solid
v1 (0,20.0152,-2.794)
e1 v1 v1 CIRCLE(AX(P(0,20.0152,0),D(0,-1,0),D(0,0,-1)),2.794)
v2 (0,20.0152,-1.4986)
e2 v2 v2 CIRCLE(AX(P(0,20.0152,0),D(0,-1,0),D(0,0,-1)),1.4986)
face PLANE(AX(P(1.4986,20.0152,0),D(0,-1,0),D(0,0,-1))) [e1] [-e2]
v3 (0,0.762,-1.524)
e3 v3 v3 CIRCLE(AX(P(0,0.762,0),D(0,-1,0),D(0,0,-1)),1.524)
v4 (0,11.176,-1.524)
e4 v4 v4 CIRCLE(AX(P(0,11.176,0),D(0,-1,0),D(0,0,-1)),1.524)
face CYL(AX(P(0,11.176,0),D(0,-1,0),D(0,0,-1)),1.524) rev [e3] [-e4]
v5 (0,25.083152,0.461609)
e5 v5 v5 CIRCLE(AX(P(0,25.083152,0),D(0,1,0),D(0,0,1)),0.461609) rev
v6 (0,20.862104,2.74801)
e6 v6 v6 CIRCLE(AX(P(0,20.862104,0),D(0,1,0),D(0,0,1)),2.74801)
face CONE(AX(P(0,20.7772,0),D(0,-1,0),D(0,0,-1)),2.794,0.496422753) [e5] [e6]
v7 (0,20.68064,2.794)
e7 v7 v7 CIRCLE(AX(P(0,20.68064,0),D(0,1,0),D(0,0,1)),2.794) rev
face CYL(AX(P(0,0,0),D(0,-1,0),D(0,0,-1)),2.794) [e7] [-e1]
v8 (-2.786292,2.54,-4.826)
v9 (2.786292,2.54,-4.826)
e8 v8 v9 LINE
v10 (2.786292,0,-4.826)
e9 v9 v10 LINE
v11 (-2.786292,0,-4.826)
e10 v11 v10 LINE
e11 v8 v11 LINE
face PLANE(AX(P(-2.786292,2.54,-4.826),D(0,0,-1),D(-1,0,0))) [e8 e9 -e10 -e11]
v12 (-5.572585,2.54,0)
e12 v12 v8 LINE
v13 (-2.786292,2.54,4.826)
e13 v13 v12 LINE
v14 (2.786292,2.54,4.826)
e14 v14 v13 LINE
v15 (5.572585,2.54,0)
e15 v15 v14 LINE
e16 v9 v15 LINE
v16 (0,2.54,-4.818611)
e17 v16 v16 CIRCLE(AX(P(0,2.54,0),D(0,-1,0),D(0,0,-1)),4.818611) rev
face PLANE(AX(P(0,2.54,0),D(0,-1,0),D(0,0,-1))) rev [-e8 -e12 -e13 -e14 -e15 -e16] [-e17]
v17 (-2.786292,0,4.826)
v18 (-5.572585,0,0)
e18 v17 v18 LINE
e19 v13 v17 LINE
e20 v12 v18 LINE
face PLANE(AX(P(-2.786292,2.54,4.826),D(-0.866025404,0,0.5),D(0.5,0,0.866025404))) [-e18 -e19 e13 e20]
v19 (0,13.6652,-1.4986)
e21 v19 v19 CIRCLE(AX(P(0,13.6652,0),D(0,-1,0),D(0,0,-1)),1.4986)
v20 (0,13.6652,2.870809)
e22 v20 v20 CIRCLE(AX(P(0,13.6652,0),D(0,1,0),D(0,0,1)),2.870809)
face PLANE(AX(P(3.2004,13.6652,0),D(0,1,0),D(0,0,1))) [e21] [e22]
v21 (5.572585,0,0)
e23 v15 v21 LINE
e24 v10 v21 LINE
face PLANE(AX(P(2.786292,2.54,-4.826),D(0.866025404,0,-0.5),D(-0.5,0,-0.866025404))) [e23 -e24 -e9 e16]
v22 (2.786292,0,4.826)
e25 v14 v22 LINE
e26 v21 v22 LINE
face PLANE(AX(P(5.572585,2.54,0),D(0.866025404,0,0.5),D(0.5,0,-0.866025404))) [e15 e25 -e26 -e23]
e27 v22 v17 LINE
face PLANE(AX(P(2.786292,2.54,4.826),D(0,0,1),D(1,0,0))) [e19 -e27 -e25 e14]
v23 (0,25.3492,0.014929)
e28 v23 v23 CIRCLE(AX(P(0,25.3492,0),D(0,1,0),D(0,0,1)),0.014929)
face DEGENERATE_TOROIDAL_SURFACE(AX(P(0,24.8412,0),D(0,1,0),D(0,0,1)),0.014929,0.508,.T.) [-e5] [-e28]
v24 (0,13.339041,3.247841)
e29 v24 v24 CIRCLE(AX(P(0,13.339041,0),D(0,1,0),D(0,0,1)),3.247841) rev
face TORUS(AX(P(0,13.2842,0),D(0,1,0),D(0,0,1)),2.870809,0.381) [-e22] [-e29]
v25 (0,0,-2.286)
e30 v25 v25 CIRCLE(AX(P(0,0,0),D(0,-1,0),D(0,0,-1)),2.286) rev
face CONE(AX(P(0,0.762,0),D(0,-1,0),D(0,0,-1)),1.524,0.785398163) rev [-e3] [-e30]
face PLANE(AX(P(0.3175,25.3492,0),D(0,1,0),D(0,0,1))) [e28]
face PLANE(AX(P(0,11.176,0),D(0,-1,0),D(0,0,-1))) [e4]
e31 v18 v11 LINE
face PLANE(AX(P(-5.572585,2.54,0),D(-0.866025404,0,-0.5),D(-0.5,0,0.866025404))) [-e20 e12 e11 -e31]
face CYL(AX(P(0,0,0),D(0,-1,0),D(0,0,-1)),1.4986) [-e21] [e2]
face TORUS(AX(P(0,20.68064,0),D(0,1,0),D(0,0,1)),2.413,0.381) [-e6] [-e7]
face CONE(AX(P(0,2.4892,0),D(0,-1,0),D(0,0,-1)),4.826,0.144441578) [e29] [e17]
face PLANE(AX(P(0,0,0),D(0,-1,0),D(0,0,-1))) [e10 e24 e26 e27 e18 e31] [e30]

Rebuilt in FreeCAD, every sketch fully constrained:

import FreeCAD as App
import Part
import Sketcher
from FreeCAD import Vector
Q = App.Units.Quantity


def edges_at(feature, points):
    """Names of the edges that pass closest to the given points."""
    edges = feature.Shape.Edges
    near = lambda p: min(range(len(edges)), key=lambda i: edges[i].distToShape(Part.Vertex(*p))[0])
    return sorted({f"Edge{near(p) + 1}" for p in points})

doc = App.newDocument("Part")
body = doc.addObject("PartDesign::Body", "Body")

# Sketch on XY plane
sketch1 = body.newObject("Sketcher::SketchObject", "Sketch")
sketch1.AttachmentSupport = (doc.getObject("XY_Plane"), [""])
sketch1.MapMode = "FlatFace"
sketch1.addGeometry([
    Part.LineSegment(Vector(4.83, 0, 0), Vector(4.83, 2.49, 0)),  # 0
    Part.LineSegment(Vector(4.83, 2.49, 0), Vector(3.2, 13.67, 0)),  # 1
    Part.LineSegment(Vector(3.2, 13.67, 0), Vector(1.5, 13.67, 0)),  # 2
    Part.LineSegment(Vector(1.5, 13.67, 0), Vector(1.5, 20.02, 0)),  # 3
    Part.LineSegment(Vector(1.5, 20.02, 0), Vector(2.79, 20.02, 0)),  # 4
    Part.LineSegment(Vector(2.79, 20.02, 0), Vector(2.79, 20.78, 0)),  # 5
    Part.LineSegment(Vector(2.79, 20.78, 0), Vector(0.32, 25.35, 0)),  # 6
    Part.LineSegment(Vector(0.32, 25.35, 0), Vector(0, 25.35, 0)),  # 7
    Part.LineSegment(Vector(0, 25.35, 0), Vector(0, 0, 0)),  # 8
    Part.LineSegment(Vector(0, 0, 0), Vector(4.83, 0, 0)),  # 9
], False)
sketch1.addConstraint([
    Sketcher.Constraint("Coincident", 0, 2, 1, 1),
    Sketcher.Constraint("Coincident", 1, 2, 2, 1),
    Sketcher.Constraint("Coincident", 2, 2, 3, 1),
    Sketcher.Constraint("Coincident", 3, 2, 4, 1),
    Sketcher.Constraint("Coincident", 4, 2, 5, 1),
    Sketcher.Constraint("Coincident", 5, 2, 6, 1),
    Sketcher.Constraint("Coincident", 6, 2, 7, 1),
    Sketcher.Constraint("Coincident", 7, 2, 8, 1),
    Sketcher.Constraint("Coincident", 8, 2, 9, 1),
    Sketcher.Constraint("Coincident", 9, 2, 0, 1),
    Sketcher.Constraint("Vertical", 0),
    Sketcher.Constraint("Horizontal", 2),
    Sketcher.Constraint("Vertical", 3),
    Sketcher.Constraint("Horizontal", 4),
    Sketcher.Constraint("Vertical", 5),
    Sketcher.Constraint("Horizontal", 7),
    Sketcher.Constraint("Vertical", 8),
    Sketcher.Constraint("Horizontal", 9),
    Sketcher.Constraint("Coincident", 8, 2, -1, 1),
    Sketcher.Constraint("DistanceX", 9, 1, 9, 2, Q("0.19 in")),
    Sketcher.Constraint("DistanceY", 3, 1, 3, 2, Q("0.25 in")),
    Sketcher.Constraint("DistanceY", 5, 1, 5, 2, Q("0.03 in")),
    Sketcher.Constraint("DistanceX", 2, 2, 2, 1, Q("0.067 in")),
    Sketcher.Constraint("DistanceX", 4, 1, 4, 2, Q("0.051 in")),
    Sketcher.Constraint("DistanceY", 0, 1, 0, 2, Q("0.098 in")),
    Sketcher.Constraint("DistanceY", 8, 2, 8, 1, Q("0.998 in")),
    Sketcher.Constraint("DistanceX", -1, 1, 4, 2, Q("0.11 in")),
    Sketcher.Constraint("DistanceY", 0, 2, 1, 2, Q("0.44 in")),
    Sketcher.Constraint("DistanceX", 7, 2, 7, 1, Q("0.0125 in")),
])
revolution = body.newObject("PartDesign::Revolution", "Revolution")
revolution.Profile = sketch1
revolution.ReferenceAxis = (sketch1, ["V_Axis"])
revolution.Angle = 360

# Sketch on XZ plane
sketch2 = body.newObject("Sketcher::SketchObject", "Sketch001")
sketch2.AttachmentSupport = (doc.getObject("XZ_Plane"), [""])
sketch2.MapMode = "FlatFace"
sketch2.addGeometry([
    Part.LineSegment(Vector(6, 0, 0), Vector(3, 5, 0)),  # 0
    Part.LineSegment(Vector(3, 5, 0), Vector(-3, 5, 0)),  # 1
    Part.LineSegment(Vector(-3, 5, 0), Vector(-6, 0, 0)),  # 2
    Part.LineSegment(Vector(-6, 0, 0), Vector(-3, -5, 0)),  # 3
    Part.LineSegment(Vector(-3, -5, 0), Vector(3, -5, 0)),  # 4
    Part.LineSegment(Vector(3, -5, 0), Vector(6, 0, 0)),  # 5
], False)
sketch2.addConstraint([
    Sketcher.Constraint("Coincident", 0, 2, 1, 1),
    Sketcher.Constraint("Coincident", 1, 2, 2, 1),
    Sketcher.Constraint("Coincident", 2, 2, 3, 1),
    Sketcher.Constraint("Coincident", 3, 2, 4, 1),
    Sketcher.Constraint("Coincident", 4, 2, 5, 1),
    Sketcher.Constraint("Coincident", 5, 2, 0, 1),
    Sketcher.Constraint("Horizontal", 1),
    Sketcher.Constraint("Horizontal", 4),
    Sketcher.Constraint("Symmetric", 0, 2, 3, 2, -1, 1),
    Sketcher.Constraint("Symmetric", 2, 2, 5, 2, -1, 1),
    Sketcher.Constraint("PointOnObject", 2, 2, -1),
    Sketcher.Constraint("Parallel", 2, 5),
    Sketcher.Constraint("Vertical", 1, 2, 3, 2),
    Sketcher.Constraint("Angle", 0, Q("120 deg")),
    Sketcher.Constraint("DistanceY", -1, 1, 0, 2, Q("0.19 in")),
    Sketcher.Constraint("DistanceX", 1, 2, 1, 1, 5.572585),
])
pad1 = body.newObject("PartDesign::Pad", "Pad")
pad1.Profile = sketch2
pad1.Length = Q("0.1 in")
pad1.Reversed = True
doc.recompute()

fillet = body.newObject("PartDesign::Fillet", "Fillet")
fillet.Base = (pad1, edges_at(pad1, [(0, 13.665, 3.2), (0, 20.777, 2.794)]))
fillet.Radius = Q("0.015 in")
doc.recompute()

fillet2 = body.newObject("PartDesign::Fillet", "Fillet001")
fillet2.Base = (fillet, edges_at(fillet, [(0, 25.349, 0.318)]))
fillet2.Radius = Q("0.02 in")

# Sketch on XZ plane
sketch3 = body.newObject("Sketcher::SketchObject", "Sketch002")
sketch3.AttachmentSupport = (doc.getObject("XZ_Plane"), [""])
sketch3.MapMode = "FlatFace"
sketch3.addGeometry(Part.Circle(Vector(0, 0, 0), Vector(0, 0, 1), 1.5), False)
sketch3.addConstraint([
    Sketcher.Constraint("Coincident", 0, 3, -1, 1),
    Sketcher.Constraint("Diameter", 0, Q("0.12 in")),
])
pocket1 = body.newObject("PartDesign::Pocket", "Pocket")
pocket1.Profile = sketch3
pocket1.Length = Q("0.44 in")
doc.recompute()

chamfer = body.newObject("PartDesign::Chamfer", "Chamfer")
chamfer.Base = (pocket1, edges_at(pocket1, [(0, 0, 1.524)]))
chamfer.Size = Q("0.03 in")

doc.recompute()
